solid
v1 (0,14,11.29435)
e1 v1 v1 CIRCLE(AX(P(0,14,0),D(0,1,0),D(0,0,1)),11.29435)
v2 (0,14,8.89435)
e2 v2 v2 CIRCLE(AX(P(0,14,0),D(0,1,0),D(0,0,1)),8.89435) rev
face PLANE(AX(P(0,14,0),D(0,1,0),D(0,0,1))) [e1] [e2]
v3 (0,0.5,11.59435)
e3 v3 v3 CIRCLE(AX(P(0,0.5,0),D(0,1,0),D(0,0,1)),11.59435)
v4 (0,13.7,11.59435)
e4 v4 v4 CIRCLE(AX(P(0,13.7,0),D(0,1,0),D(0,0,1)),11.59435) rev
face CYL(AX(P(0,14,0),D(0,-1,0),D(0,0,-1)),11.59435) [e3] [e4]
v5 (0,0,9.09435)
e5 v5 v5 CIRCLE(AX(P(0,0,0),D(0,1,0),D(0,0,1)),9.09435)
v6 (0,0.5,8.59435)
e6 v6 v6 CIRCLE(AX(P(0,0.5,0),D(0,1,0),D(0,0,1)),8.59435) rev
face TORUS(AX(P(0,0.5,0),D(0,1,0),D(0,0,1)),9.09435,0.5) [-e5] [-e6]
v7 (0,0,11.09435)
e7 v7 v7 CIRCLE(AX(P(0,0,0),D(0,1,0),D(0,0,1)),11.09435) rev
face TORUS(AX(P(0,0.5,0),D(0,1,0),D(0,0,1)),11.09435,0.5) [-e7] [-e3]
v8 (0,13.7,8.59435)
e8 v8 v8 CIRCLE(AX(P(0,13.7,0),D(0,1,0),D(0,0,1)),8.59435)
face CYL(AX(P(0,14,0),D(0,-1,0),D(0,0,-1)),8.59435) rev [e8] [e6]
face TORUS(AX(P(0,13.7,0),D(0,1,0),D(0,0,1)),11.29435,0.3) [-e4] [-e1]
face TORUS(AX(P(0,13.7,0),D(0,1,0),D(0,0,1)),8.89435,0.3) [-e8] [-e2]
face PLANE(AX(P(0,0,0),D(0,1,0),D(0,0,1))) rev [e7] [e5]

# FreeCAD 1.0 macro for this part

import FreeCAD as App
import Part
import Sketcher
from FreeCAD import Vector
Q = App.Units.Quantity


def edges_at(feature, points):
    """Names of the edges that pass closest to the given points."""
    edges = feature.Shape.Edges
    near = lambda p: min(range(len(edges)), key=lambda i: edges[i].distToShape(Part.Vertex(*p))[0])
    return sorted({f"Edge{near(p) + 1}" for p in points})

doc = App.newDocument("Part")
body = doc.addObject("PartDesign::Body", "Body")

# Sketch on XZ plane
sketch1 = doc.addObject("Sketcher::SketchObject", "Sketch")
body.addObject(sketch1)
sketch1.AttachmentSupport = (doc.XZ_Plane, [""])
sketch1.MapMode = "FlatFace"
sketch1.addGeometry([
    Part.Circle(Vector(0, 0, 0), Vector(0, 0, 1), 11.59435),
    Part.Circle(Vector(0, 0, 0), Vector(0, 0, 1), 8.59435),
], False)
sketch1.addConstraint([
    Sketcher.Constraint("Coincident", 0, 3, -1, 1),
    Sketcher.Constraint("Coincident", 1, 3, -1, 1),
    Sketcher.Constraint("Diameter", 0, Q("23.1887 mm")),
    Sketcher.Constraint("Diameter", 1, Q("17.1887 mm")),
])
pad1 = doc.addObject("PartDesign::Pad", "Pad")
body.addObject(pad1)
pad1.Profile = sketch1
pad1.Length = 14
pad1.Reversed = True
doc.recompute()

fillet = doc.addObject("PartDesign::Fillet", "Fillet")
body.addObject(fillet)
fillet.Base = (pad1, edges_at(pad1, [(0, 14, -11.594)]))
fillet.Radius = 0.3
doc.recompute()

fillet2 = doc.addObject("PartDesign::Fillet", "Fillet001")
body.addObject(fillet2)
fillet2.Base = (fillet, edges_at(fillet, [(0, 14, -8.594)]))
fillet2.Radius = 0.3
doc.recompute()

fillet3 = doc.addObject("PartDesign::Fillet", "Fillet002")
body.addObject(fillet3)
fillet3.Base = (fillet2, edges_at(fillet2, [(0, 0, -11.594)]))
fillet3.Radius = 0.5
doc.recompute()

fillet4 = doc.addObject("PartDesign::Fillet", "Fillet003")
body.addObject(fillet4)
fillet4.Base = (fillet3, edges_at(fillet3, [(0, 0, -8.594)]))
fillet4.Radius = 0.5

doc.recompute()
